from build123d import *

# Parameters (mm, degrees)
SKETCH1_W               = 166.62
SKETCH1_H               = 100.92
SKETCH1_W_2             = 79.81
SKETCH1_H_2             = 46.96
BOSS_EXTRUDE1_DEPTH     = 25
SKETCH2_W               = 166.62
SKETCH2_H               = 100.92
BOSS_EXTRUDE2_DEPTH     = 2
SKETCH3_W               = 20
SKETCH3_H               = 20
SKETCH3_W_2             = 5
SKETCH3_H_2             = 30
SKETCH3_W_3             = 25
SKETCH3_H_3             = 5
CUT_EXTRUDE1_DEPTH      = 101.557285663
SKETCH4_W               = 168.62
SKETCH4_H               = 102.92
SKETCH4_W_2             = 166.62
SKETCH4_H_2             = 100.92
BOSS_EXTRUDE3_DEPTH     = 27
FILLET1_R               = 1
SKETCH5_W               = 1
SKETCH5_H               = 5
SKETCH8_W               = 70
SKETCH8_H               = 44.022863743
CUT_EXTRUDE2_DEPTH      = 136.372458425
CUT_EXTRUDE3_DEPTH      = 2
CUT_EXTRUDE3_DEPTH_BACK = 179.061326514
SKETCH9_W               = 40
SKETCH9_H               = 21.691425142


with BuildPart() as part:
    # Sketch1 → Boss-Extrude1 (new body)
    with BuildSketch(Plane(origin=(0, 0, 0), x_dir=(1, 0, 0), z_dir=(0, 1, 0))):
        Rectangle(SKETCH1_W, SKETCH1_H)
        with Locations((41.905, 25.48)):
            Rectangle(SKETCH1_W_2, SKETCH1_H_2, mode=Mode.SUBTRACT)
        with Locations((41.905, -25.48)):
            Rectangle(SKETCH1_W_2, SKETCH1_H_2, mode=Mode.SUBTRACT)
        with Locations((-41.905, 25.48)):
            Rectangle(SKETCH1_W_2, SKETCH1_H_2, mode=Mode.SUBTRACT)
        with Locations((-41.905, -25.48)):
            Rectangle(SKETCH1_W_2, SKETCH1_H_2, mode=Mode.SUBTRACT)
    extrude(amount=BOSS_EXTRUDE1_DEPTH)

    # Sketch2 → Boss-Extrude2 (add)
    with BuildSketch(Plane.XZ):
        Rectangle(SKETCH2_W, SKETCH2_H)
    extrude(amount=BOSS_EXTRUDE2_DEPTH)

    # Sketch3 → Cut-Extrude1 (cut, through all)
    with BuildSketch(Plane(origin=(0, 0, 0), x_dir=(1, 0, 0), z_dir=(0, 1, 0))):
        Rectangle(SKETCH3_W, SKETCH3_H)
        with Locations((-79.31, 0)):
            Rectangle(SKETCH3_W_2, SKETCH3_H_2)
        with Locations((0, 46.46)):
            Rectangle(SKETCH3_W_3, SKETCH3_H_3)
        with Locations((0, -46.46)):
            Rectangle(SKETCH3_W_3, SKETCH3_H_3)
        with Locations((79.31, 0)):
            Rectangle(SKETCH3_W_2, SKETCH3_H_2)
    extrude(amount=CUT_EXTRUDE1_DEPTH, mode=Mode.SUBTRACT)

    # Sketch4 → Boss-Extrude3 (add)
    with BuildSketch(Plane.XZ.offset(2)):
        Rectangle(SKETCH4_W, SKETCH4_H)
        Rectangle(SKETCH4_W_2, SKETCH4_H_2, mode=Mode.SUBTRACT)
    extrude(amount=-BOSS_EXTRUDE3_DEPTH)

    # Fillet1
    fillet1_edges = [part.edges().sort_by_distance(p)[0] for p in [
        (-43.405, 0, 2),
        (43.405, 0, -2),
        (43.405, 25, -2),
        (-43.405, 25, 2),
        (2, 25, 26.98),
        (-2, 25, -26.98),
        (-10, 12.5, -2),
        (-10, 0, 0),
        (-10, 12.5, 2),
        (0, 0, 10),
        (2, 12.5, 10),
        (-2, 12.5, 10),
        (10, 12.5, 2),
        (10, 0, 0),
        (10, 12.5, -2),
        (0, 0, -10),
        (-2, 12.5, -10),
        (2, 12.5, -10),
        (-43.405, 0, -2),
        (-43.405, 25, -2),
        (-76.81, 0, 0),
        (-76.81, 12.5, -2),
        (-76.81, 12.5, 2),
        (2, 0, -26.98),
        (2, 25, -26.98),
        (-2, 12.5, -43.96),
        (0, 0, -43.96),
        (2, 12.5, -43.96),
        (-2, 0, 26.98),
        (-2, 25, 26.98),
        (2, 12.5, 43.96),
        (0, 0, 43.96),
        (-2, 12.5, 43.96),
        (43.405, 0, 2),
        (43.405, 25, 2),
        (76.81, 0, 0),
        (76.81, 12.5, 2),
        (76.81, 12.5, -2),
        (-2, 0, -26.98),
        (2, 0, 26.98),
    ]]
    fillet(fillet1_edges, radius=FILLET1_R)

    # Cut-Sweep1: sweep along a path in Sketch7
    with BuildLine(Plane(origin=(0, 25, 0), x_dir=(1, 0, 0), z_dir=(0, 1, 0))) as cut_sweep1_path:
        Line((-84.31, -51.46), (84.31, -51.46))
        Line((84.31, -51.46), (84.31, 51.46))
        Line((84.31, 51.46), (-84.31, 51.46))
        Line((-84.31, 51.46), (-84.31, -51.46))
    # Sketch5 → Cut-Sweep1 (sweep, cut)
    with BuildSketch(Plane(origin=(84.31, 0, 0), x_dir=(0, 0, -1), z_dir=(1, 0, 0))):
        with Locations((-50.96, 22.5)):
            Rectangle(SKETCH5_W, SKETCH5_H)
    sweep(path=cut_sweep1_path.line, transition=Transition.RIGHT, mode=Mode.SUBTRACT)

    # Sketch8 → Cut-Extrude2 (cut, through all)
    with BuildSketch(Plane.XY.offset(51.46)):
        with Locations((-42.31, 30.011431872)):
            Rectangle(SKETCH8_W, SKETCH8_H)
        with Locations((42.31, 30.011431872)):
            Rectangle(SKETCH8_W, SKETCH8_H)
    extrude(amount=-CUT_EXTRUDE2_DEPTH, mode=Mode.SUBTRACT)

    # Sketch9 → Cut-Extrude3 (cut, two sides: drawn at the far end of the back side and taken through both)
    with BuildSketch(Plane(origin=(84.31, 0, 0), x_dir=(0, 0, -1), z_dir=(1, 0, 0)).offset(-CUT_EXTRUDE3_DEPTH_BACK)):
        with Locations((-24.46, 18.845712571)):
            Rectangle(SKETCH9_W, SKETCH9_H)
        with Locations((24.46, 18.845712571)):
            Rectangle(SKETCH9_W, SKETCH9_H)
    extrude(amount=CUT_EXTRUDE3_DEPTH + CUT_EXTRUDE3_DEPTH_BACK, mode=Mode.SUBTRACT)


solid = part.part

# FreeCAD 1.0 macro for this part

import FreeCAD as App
import Part
import Sketcher

V = App.Vector


def edges_at(feature, points):
    """Names of the edges that pass closest to the given points."""
    edges = feature.Shape.Edges
    near = lambda p: min(range(len(edges)), key=lambda i: edges[i].distToShape(Part.Vertex(*p))[0])
    return sorted({f"Edge{near(p) + 1}" for p in points})

doc = App.newDocument("Part")
body = doc.addObject("PartDesign::Body", "Body")

# Sketch on XZ plane
sketch1 = body.newObject("Sketcher::SketchObject", "Sketch")
sketch1.AttachmentSupport = (doc.getObject("XZ_Plane"), [""])
sketch1.MapMode = "FlatFace"
sketch1.addGeometry([
    Part.LineSegment(V(-83, -50, 0), V(-83, 50, 0)),  # 0
    Part.LineSegment(V(-83, 50, 0), V(83, 50, 0)),  # 1
    Part.LineSegment(V(83, 50, 0), V(83, -50, 0)),  # 2
    Part.LineSegment(V(83, -50, 0), V(-83, -50, 0)),  # 3
    Part.LineSegment(V(-2, 49, 0), V(-82, 49, 0)),  # 4
    Part.LineSegment(V(-82, 49, 0), V(-82, 2, 0)),  # 5
    Part.LineSegment(V(-82, 2, 0), V(-2, 2, 0)),  # 6
    Part.LineSegment(V(-2, 2, 0), V(-2, 49, 0)),  # 7
    Part.LineSegment(V(82, 49, 0), V(2, 49, 0)),  # 8
    Part.LineSegment(V(2, 49, 0), V(2, 2, 0)),  # 9
    Part.LineSegment(V(2, 2, 0), V(82, 2, 0)),  # 10
    Part.LineSegment(V(82, 2, 0), V(82, 49, 0)),  # 11
    Part.LineSegment(V(-2, -2, 0), V(-82, -2, 0)),  # 12
    Part.LineSegment(V(-82, -2, 0), V(-82, -49, 0)),  # 13
    Part.LineSegment(V(-82, -49, 0), V(-2, -49, 0)),  # 14
    Part.LineSegment(V(-2, -49, 0), V(-2, -2, 0)),  # 15
    Part.LineSegment(V(82, -2, 0), V(2, -2, 0)),  # 16
    Part.LineSegment(V(2, -2, 0), V(2, -49, 0)),  # 17
    Part.LineSegment(V(2, -49, 0), V(82, -49, 0)),  # 18
    Part.LineSegment(V(82, -49, 0), V(82, -2, 0)),  # 19
], False)
sketch1.addConstraint([
    Sketcher.Constraint("Coincident", 0, 2, 1, 1),
    Sketcher.Constraint("Coincident", 1, 2, 2, 1),
    Sketcher.Constraint("Coincident", 2, 2, 3, 1),
    Sketcher.Constraint("Coincident", 3, 2, 0, 1),
    Sketcher.Constraint("Coincident", 4, 2, 5, 1),
    Sketcher.Constraint("Coincident", 5, 2, 6, 1),
    Sketcher.Constraint("Coincident", 6, 2, 7, 1),
    Sketcher.Constraint("Coincident", 7, 2, 4, 1),
    Sketcher.Constraint("Coincident", 8, 2, 9, 1),
    Sketcher.Constraint("Coincident", 9, 2, 10, 1),
    Sketcher.Constraint("Coincident", 10, 2, 11, 1),
    Sketcher.Constraint("Coincident", 11, 2, 8, 1),
    Sketcher.Constraint("Coincident", 12, 2, 13, 1),
    Sketcher.Constraint("Coincident", 13, 2, 14, 1),
    Sketcher.Constraint("Coincident", 14, 2, 15, 1),
    Sketcher.Constraint("Coincident", 15, 2, 12, 1),
    Sketcher.Constraint("Coincident", 16, 2, 17, 1),
    Sketcher.Constraint("Coincident", 17, 2, 18, 1),
    Sketcher.Constraint("Coincident", 18, 2, 19, 1),
    Sketcher.Constraint("Coincident", 19, 2, 16, 1),
    Sketcher.Constraint("Vertical", 0),
    Sketcher.Constraint("Horizontal", 1),
    Sketcher.Constraint("Vertical", 2),
    Sketcher.Constraint("Horizontal", 3),
    Sketcher.Constraint("Horizontal", 4),
    Sketcher.Constraint("Vertical", 5),
    Sketcher.Constraint("Horizontal", 6),
    Sketcher.Constraint("Vertical", 7),
    Sketcher.Constraint("Horizontal", 8),
    Sketcher.Constraint("Vertical", 9),
    Sketcher.Constraint("Horizontal", 10),
    Sketcher.Constraint("Vertical", 11),
    Sketcher.Constraint("Horizontal", 12),
    Sketcher.Constraint("Vertical", 13),
    Sketcher.Constraint("Horizontal", 14),
    Sketcher.Constraint("Vertical", 15),
    Sketcher.Constraint("Horizontal", 16),
    Sketcher.Constraint("Vertical", 17),
    Sketcher.Constraint("Horizontal", 18),
    Sketcher.Constraint("Vertical", 19),
    Sketcher.Constraint("Symmetric", 0, 2, 2, 2, -1, 1),
    Sketcher.Constraint("Symmetric", 10, 2, 12, 2, -1, 1),
    Sketcher.Constraint("Symmetric", 8, 2, 14, 2, -1, 1),
    Sketcher.Constraint("Symmetric", 6, 2, 16, 2, -1, 1),
    Sketcher.Constraint("Symmetric", 4, 2, 18, 2, -1, 1),
    Sketcher.Constraint("Symmetric", 7, 2, 8, 2, -2),
    Sketcher.Constraint("Symmetric", 5, 2, 10, 2, -2),
    Sketcher.Constraint("DistanceY", -1, 1, 5, 2, 2.0),
    Sketcher.Constraint("DistanceX", 6, 2, -1, 1, 2.0),
    Sketcher.Constraint("DistanceX", 1, 1, 1, 2, 166.62),
    Sketcher.Constraint("DistanceX", 4, 2, 4, 1, 79.81),
    Sketcher.Constraint("DistanceY", 0, 1, 0, 2, 100.92),
    Sketcher.Constraint("DistanceY", 5, 2, 5, 1, 46.96),
])
pad1 = body.newObject("PartDesign::Pad", "Pad")
pad1.Profile = sketch1
pad1.Length = 25
pad1.Reversed = True

# Sketch on XZ plane
sketch2 = body.newObject("Sketcher::SketchObject", "Sketch001")
sketch2.AttachmentSupport = (doc.getObject("XZ_Plane"), [""])
sketch2.MapMode = "FlatFace"
sketch2.addGeometry([
    Part.LineSegment(V(-83, 50, 0), V(-83, -50, 0)),
    Part.LineSegment(V(-83, -50, 0), V(83, -50, 0)),
    Part.LineSegment(V(83, -50, 0), V(83, 50, 0)),
    Part.LineSegment(V(83, 50, 0), V(-83, 50, 0)),
], False)
sketch2.addConstraint([
    Sketcher.Constraint("Coincident", 0, 2, 1, 1),
    Sketcher.Constraint("Coincident", 1, 2, 2, 1),
    Sketcher.Constraint("Coincident", 2, 2, 3, 1),
    Sketcher.Constraint("Coincident", 3, 2, 0, 1),
    Sketcher.Constraint("Vertical", 0),
    Sketcher.Constraint("Horizontal", 1),
    Sketcher.Constraint("Vertical", 2),
    Sketcher.Constraint("Horizontal", 3),
    Sketcher.Constraint("Symmetric", 0, 2, 2, 2, -1, 1),
    Sketcher.Constraint("DistanceX", 1, 1, 1, 2, 166.62),
    Sketcher.Constraint("DistanceY", 0, 2, 0, 1, 100.92),
])
pad2 = body.newObject("PartDesign::Pad", "Pad001")
pad2.Profile = sketch2
pad2.Length = 2

# Sketch on XZ plane
sketch3 = body.newObject("Sketcher::SketchObject", "Sketch002")
sketch3.AttachmentSupport = (doc.getObject("XZ_Plane"), [""])
sketch3.MapMode = "FlatFace"
sketch3.addGeometry([
    Part.LineSegment(V(-10, -10, 0), V(-10, 10, 0)),  # 0
    Part.LineSegment(V(-10, 10, 0), V(10, 10, 0)),  # 1
    Part.LineSegment(V(10, 10, 0), V(10, -10, 0)),  # 2
    Part.LineSegment(V(10, -10, 0), V(-10, -10, 0)),  # 3
    Part.LineSegment(V(-82, -15, 0), V(-82, 15, 0)),  # 4
    Part.LineSegment(V(-82, 15, 0), V(-77, 15, 0)),  # 5
    Part.LineSegment(V(-77, 15, 0), V(-77, -15, 0)),  # 6
    Part.LineSegment(V(-77, -15, 0), V(-82, -15, 0)),  # 7
    Part.LineSegment(V(-12, -49, 0), V(-12, -44, 0)),  # 8
    Part.LineSegment(V(-12, -44, 0), V(12, -44, 0)),  # 9
    Part.LineSegment(V(12, -44, 0), V(12, -49, 0)),  # 10
    Part.LineSegment(V(12, -49, 0), V(-12, -49, 0)),  # 11
    Part.LineSegment(V(-12, 44, 0), V(-12, 49, 0)),  # 12
    Part.LineSegment(V(-12, 49, 0), V(12, 49, 0)),  # 13
    Part.LineSegment(V(12, 49, 0), V(12, 44, 0)),  # 14
    Part.LineSegment(V(12, 44, 0), V(-12, 44, 0)),  # 15
    Part.LineSegment(V(77, -15, 0), V(77, 15, 0)),  # 16
    Part.LineSegment(V(77, 15, 0), V(82, 15, 0)),  # 17
    Part.LineSegment(V(82, 15, 0), V(82, -15, 0)),  # 18
    Part.LineSegment(V(82, -15, 0), V(77, -15, 0)),  # 19
], False)
sketch3.addConstraint([
    Sketcher.Constraint("Coincident", 0, 2, 1, 1),
    Sketcher.Constraint("Coincident", 1, 2, 2, 1),
    Sketcher.Constraint("Coincident", 2, 2, 3, 1),
    Sketcher.Constraint("Coincident", 3, 2, 0, 1),
    Sketcher.Constraint("Coincident", 4, 2, 5, 1),
    Sketcher.Constraint("Coincident", 5, 2, 6, 1),
    Sketcher.Constraint("Coincident", 6, 2, 7, 1),
    Sketcher.Constraint("Coincident", 7, 2, 4, 1),
    Sketcher.Constraint("Coincident", 8, 2, 9, 1),
    Sketcher.Constraint("Coincident", 9, 2, 10, 1),
    Sketcher.Constraint("Coincident", 10, 2, 11, 1),
    Sketcher.Constraint("Coincident", 11, 2, 8, 1),
    Sketcher.Constraint("Coincident", 12, 2, 13, 1),
    Sketcher.Constraint("Coincident", 13, 2, 14, 1),
    Sketcher.Constraint("Coincident", 14, 2, 15, 1),
    Sketcher.Constraint("Coincident", 15, 2, 12, 1),
    Sketcher.Constraint("Coincident", 16, 2, 17, 1),
    Sketcher.Constraint("Coincident", 17, 2, 18, 1),
    Sketcher.Constraint("Coincident", 18, 2, 19, 1),
    Sketcher.Constraint("Coincident", 19, 2, 16, 1),
    Sketcher.Constraint("Vertical", 0),
    Sketcher.Constraint("Horizontal", 1),
    Sketcher.Constraint("Vertical", 2),
    Sketcher.Constraint("Horizontal", 3),
    Sketcher.Constraint("Vertical", 4),
    Sketcher.Constraint("Horizontal", 5),
    Sketcher.Constraint("Vertical", 6),
    Sketcher.Constraint("Horizontal", 7),
    Sketcher.Constraint("Vertical", 8),
    Sketcher.Constraint("Horizontal", 9),
    Sketcher.Constraint("Vertical", 10),
    Sketcher.Constraint("Horizontal", 11),
    Sketcher.Constraint("Vertical", 12),
    Sketcher.Constraint("Horizontal", 13),
    Sketcher.Constraint("Vertical", 14),
    Sketcher.Constraint("Horizontal", 15),
    Sketcher.Constraint("Vertical", 16),
    Sketcher.Constraint("Horizontal", 17),
    Sketcher.Constraint("Vertical", 18),
    Sketcher.Constraint("Horizontal", 19),
    Sketcher.Constraint("Symmetric", 0, 2, 2, 2, -1, 1),
    Sketcher.Constraint("Symmetric", 10, 2, 12, 2, -1, 1),
    Sketcher.Constraint("Symmetric", 8, 2, 14, 2, -1, 1),
    Sketcher.Constraint("Symmetric", 6, 2, 16, 2, -1, 1),
    Sketcher.Constraint("Symmetric", 4, 2, 18, 2, -1, 1),
    Sketcher.Constraint("Horizontal", 5, 2, 16, 2),
    Sketcher.Constraint("Vertical", 11, 2, 12, 2),
    Sketcher.Constraint("Equal", 3, 0),
    Sketcher.Constraint("Equal", 19, 8),
    Sketcher.Constraint("DistanceX", 1, 1, 1, 2, 20.0),
    Sketcher.Constraint("DistanceX", 5, 1, 5, 2, 5.0),
    Sketcher.Constraint("DistanceX", 9, 1, 9, 2, 25.0),
    Sketcher.Constraint("DistanceY", 4, 1, 4, 2, 30.0),
    Sketcher.Constraint("DistanceX", 4, 2, -1, 1, 81.81),
    Sketcher.Constraint("DistanceY", 8, 2, -1, 1, 43.96),
])
pocket1 = body.newObject("PartDesign::Pocket", "Pocket")
pocket1.Profile = sketch3
pocket1.Type = "ThroughAll"

# Sketch on XZ plane
sketch4 = body.newObject("Sketcher::SketchObject", "Sketch003")
sketch4.AttachmentSupport = (doc.getObject("XZ_Plane"), [""])
sketch4.MapMode = "FlatFace"
sketch4.AttachmentOffset = App.Placement(V(0, 0, 2), App.Rotation())
sketch4.addGeometry([
    Part.LineSegment(V(-84, 51, 0), V(-84, -51, 0)),  # 0
    Part.LineSegment(V(-84, -51, 0), V(84, -51, 0)),  # 1
    Part.LineSegment(V(84, -51, 0), V(84, 51, 0)),  # 2
    Part.LineSegment(V(84, 51, 0), V(-84, 51, 0)),  # 3
    Part.LineSegment(V(83, -50, 0), V(-83, -50, 0)),  # 4
    Part.LineSegment(V(-83, -50, 0), V(-83, 50, 0)),  # 5
    Part.LineSegment(V(-83, 50, 0), V(83, 50, 0)),  # 6
    Part.LineSegment(V(83, 50, 0), V(83, -50, 0)),  # 7
], False)
sketch4.addConstraint([
    Sketcher.Constraint("Coincident", 0, 2, 1, 1),
    Sketcher.Constraint("Coincident", 1, 2, 2, 1),
    Sketcher.Constraint("Coincident", 2, 2, 3, 1),
    Sketcher.Constraint("Coincident", 3, 2, 0, 1),
    Sketcher.Constraint("Coincident", 4, 2, 5, 1),
    Sketcher.Constraint("Coincident", 5, 2, 6, 1),
    Sketcher.Constraint("Coincident", 6, 2, 7, 1),
    Sketcher.Constraint("Coincident", 7, 2, 4, 1),
    Sketcher.Constraint("Vertical", 0),
    Sketcher.Constraint("Horizontal", 1),
    Sketcher.Constraint("Vertical", 2),
    Sketcher.Constraint("Horizontal", 3),
    Sketcher.Constraint("Horizontal", 4),
    Sketcher.Constraint("Vertical", 5),
    Sketcher.Constraint("Horizontal", 6),
    Sketcher.Constraint("Vertical", 7),
    Sketcher.Constraint("Symmetric", 0, 2, 2, 2, -1, 1),
    Sketcher.Constraint("Symmetric", 4, 2, 6, 2, -1, 1),
    Sketcher.Constraint("DistanceX", 0, 2, 4, 2, 1.0),
    Sketcher.Constraint("DistanceY", 0, 2, 4, 2, 1.0),
    Sketcher.Constraint("DistanceX", 1, 1, 1, 2, 168.62),
    Sketcher.Constraint("DistanceY", 0, 2, 0, 1, 102.92),
])
pad3 = body.newObject("PartDesign::Pad", "Pad002")
pad3.Profile = sketch4
pad3.Length = 27
pad3.Reversed = True
doc.recompute()

fillet = body.newObject("PartDesign::Fillet", "Fillet")
fillet.Base = (pad3, edges_at(pad3, [
    (-43.405, 0, 2),
    (43.405, 0, -2),
    (43.405, 25, -2),
    (-43.405, 25, 2),
    (2, 25, 26.98),
    (-2, 25, -26.98),
    (-10, 12.5, -2),
    (-10, 0, 0),
    (-10, 12.5, 2),
    (0, 0, 10),
    (2, 12.5, 10),
    (-2, 12.5, 10),
    (10, 12.5, 2),
    (10, 0, 0),
    (10, 12.5, -2),
    (0, 0, -10),
    (-2, 12.5, -10),
    (2, 12.5, -10),
    (-43.405, 0, -2),
    (-43.405, 25, -2),
    (-76.81, 0, 0),
    (-76.81, 12.5, -2),
    (-76.81, 12.5, 2),
    (2, 0, -26.98),
    (2, 25, -26.98),
    (-2, 12.5, -43.96),
    (0, 0, -43.96),
    (2, 12.5, -43.96),
    (-2, 0, 26.98),
    (-2, 25, 26.98),
    (2, 12.5, 43.96),
    (0, 0, 43.96),
    (-2, 12.5, 43.96),
    (43.405, 0, 2),
    (43.405, 25, 2),
    (76.81, 0, 0),
    (76.81, 12.5, 2),
    (76.81, 12.5, -2),
    (-2, 0, -26.98),
    (2, 0, 26.98),
]))
fillet.Radius = 1

# Sketch on YZ plane
sketch5 = body.newObject("Sketcher::SketchObject", "Sketch004")
sketch5.AttachmentSupport = (doc.getObject("YZ_Plane"), [""])
sketch5.MapMode = "FlatFace"
sketch5.AttachmentOffset = App.Placement(V(0, 0, 84.31), App.Rotation())
sketch5.addGeometry([
    Part.LineSegment(V(25, 51.5, 0), V(20, 51.5, 0)),
    Part.LineSegment(V(20, 51.5, 0), V(20, 50.5, 0)),
    Part.LineSegment(V(20, 50.5, 0), V(25, 50.5, 0)),
    Part.LineSegment(V(25, 50.5, 0), V(25, 51.5, 0)),
], False)
sketch5.addConstraint([
    Sketcher.Constraint("Coincident", 0, 2, 1, 1),
    Sketcher.Constraint("Coincident", 1, 2, 2, 1),
    Sketcher.Constraint("Coincident", 2, 2, 3, 1),
    Sketcher.Constraint("Coincident", 3, 2, 0, 1),
    Sketcher.Constraint("Horizontal", 0),
    Sketcher.Constraint("Vertical", 1),
    Sketcher.Constraint("Horizontal", 2),
    Sketcher.Constraint("Vertical", 3),
    Sketcher.Constraint("DistanceX", 0, 2, 0, 1, 5.0),
    Sketcher.Constraint("DistanceY", 1, 2, 1, 1, 1.0),
    Sketcher.Constraint("DistanceX", -1, 1, 0, 2, 20.0),
    Sketcher.Constraint("DistanceY", -1, 1, 0, 2, 51.46),
])

# Sketch on XZ plane
sketch6 = body.newObject("Sketcher::SketchObject", "Sketch005")
sketch6.AttachmentSupport = (doc.getObject("XZ_Plane"), [""])
sketch6.MapMode = "FlatFace"
sketch6.AttachmentOffset = App.Placement(V(0, 0, -25), App.Rotation())
sketch6.addGeometry([
    Part.LineSegment(V(-84, 51, 0), V(84, 51, 0)),
    Part.LineSegment(V(84, 51, 0), V(84, -51, 0)),
    Part.LineSegment(V(84, -51, 0), V(-84, -51, 0)),
    Part.LineSegment(V(-84, -51, 0), V(-84, 51, 0)),
], False)
sketch6.addConstraint([
    Sketcher.Constraint("Coincident", 0, 2, 1, 1),
    Sketcher.Constraint("Coincident", 1, 2, 2, 1),
    Sketcher.Constraint("Coincident", 2, 2, 3, 1),
    Sketcher.Constraint("Coincident", 3, 2, 0, 1),
    Sketcher.Constraint("Horizontal", 0),
    Sketcher.Constraint("Vertical", 1),
    Sketcher.Constraint("Horizontal", 2),
    Sketcher.Constraint("Vertical", 3),
    Sketcher.Constraint("Symmetric", 0, 2, 2, 2, -1, 1),
    Sketcher.Constraint("DistanceX", 0, 1, 0, 2, 168.62),
    Sketcher.Constraint("DistanceY", 1, 2, 1, 1, 102.92),
])
doc.recompute()

subtractivepipe = body.newObject("PartDesign::SubtractivePipe", "SubtractivePipe")
subtractivepipe.Profile = sketch5
subtractivepipe.Spine = (sketch6, ["Edge1", "Edge2", "Edge3", "Edge4"])
subtractivepipe.Transition = "Right corner"

# Sketch on XY plane
sketch7 = body.newObject("Sketcher::SketchObject", "Sketch006")
sketch7.AttachmentSupport = (doc.getObject("XY_Plane"), [""])
sketch7.MapMode = "FlatFace"
sketch7.AttachmentOffset = App.Placement(V(0, 0, 51.46), App.Rotation())
sketch7.addGeometry([
    Part.LineSegment(V(-77, 52, 0), V(-77, 8, 0)),  # 0
    Part.LineSegment(V(-77, 8, 0), V(-7, 8, 0)),  # 1
    Part.LineSegment(V(-7, 8, 0), V(-7, 52, 0)),  # 2
    Part.LineSegment(V(-7, 52, 0), V(-77, 52, 0)),  # 3
    Part.LineSegment(V(7, 52, 0), V(7, 8, 0)),  # 4
    Part.LineSegment(V(7, 8, 0), V(77, 8, 0)),  # 5
    Part.LineSegment(V(77, 8, 0), V(77, 52, 0)),  # 6
    Part.LineSegment(V(77, 52, 0), V(7, 52, 0)),  # 7
], False)
sketch7.addConstraint([
    Sketcher.Constraint("Coincident", 0, 2, 1, 1),
    Sketcher.Constraint("Coincident", 1, 2, 2, 1),
    Sketcher.Constraint("Coincident", 2, 2, 3, 1),
    Sketcher.Constraint("Coincident", 3, 2, 0, 1),
    Sketcher.Constraint("Coincident", 4, 2, 5, 1),
    Sketcher.Constraint("Coincident", 5, 2, 6, 1),
    Sketcher.Constraint("Coincident", 6, 2, 7, 1),
    Sketcher.Constraint("Coincident", 7, 2, 4, 1),
    Sketcher.Constraint("Vertical", 0),
    Sketcher.Constraint("Horizontal", 1),
    Sketcher.Constraint("Vertical", 2),
    Sketcher.Constraint("Horizontal", 3),
    Sketcher.Constraint("Vertical", 4),
    Sketcher.Constraint("Horizontal", 5),
    Sketcher.Constraint("Vertical", 6),
    Sketcher.Constraint("Horizontal", 7),
    Sketcher.Constraint("Symmetric", 1, 2, 4, 2, -2),
    Sketcher.Constraint("Symmetric", 3, 2, 6, 2, -2),
    Sketcher.Constraint("DistanceX", 1, 1, 1, 2, 70.0),
    Sketcher.Constraint("DistanceY", -1, 1, 0, 2, 8.0),
    Sketcher.Constraint("DistanceX", 0, 2, -1, 1, 77.31),
    Sketcher.Constraint("DistanceY", 0, 2, 0, 1, 44.022864),
])
pocket2 = body.newObject("PartDesign::Pocket", "Pocket001")
pocket2.Profile = sketch7
pocket2.Type = "ThroughAll"

# Sketch on YZ plane
sketch8 = body.newObject("Sketcher::SketchObject", "Sketch007")
sketch8.AttachmentSupport = (doc.getObject("YZ_Plane"), [""])
sketch8.MapMode = "FlatFace"
sketch8.AttachmentOffset = App.Placement(V(0, 0, 84.31), App.Rotation())
sketch8.addGeometry([
    Part.LineSegment(V(30, 44, 0), V(8, 44, 0)),  # 0
    Part.LineSegment(V(8, 44, 0), V(8, 4, 0)),  # 1
    Part.LineSegment(V(8, 4, 0), V(30, 4, 0)),  # 2
    Part.LineSegment(V(30, 4, 0), V(30, 44, 0)),  # 3
    Part.LineSegment(V(30, -4, 0), V(8, -4, 0)),  # 4
    Part.LineSegment(V(8, -4, 0), V(8, -44, 0)),  # 5
    Part.LineSegment(V(8, -44, 0), V(30, -44, 0)),  # 6
    Part.LineSegment(V(30, -44, 0), V(30, -4, 0)),  # 7
], False)
sketch8.addConstraint([
    Sketcher.Constraint("Coincident", 0, 2, 1, 1),
    Sketcher.Constraint("Coincident", 1, 2, 2, 1),
    Sketcher.Constraint("Coincident", 2, 2, 3, 1),
    Sketcher.Constraint("Coincident", 3, 2, 0, 1),
    Sketcher.Constraint("Coincident", 4, 2, 5, 1),
    Sketcher.Constraint("Coincident", 5, 2, 6, 1),
    Sketcher.Constraint("Coincident", 6, 2, 7, 1),
    Sketcher.Constraint("Coincident", 7, 2, 4, 1),
    Sketcher.Constraint("Horizontal", 0),
    Sketcher.Constraint("Vertical", 1),
    Sketcher.Constraint("Horizontal", 2),
    Sketcher.Constraint("Vertical", 3),
    Sketcher.Constraint("Horizontal", 4),
    Sketcher.Constraint("Vertical", 5),
    Sketcher.Constraint("Horizontal", 6),
    Sketcher.Constraint("Vertical", 7),
    Sketcher.Constraint("Symmetric", 1, 2, 4, 2, -1),
    Sketcher.Constraint("Symmetric", 3, 2, 6, 2, -1),
    Sketcher.Constraint("DistanceY", 1, 2, 1, 1, 40.0),
    Sketcher.Constraint("DistanceX", -1, 1, 0, 2, 8.0),
    Sketcher.Constraint("DistanceY", -1, 1, 0, 2, 44.46),
    Sketcher.Constraint("DistanceX", 0, 2, 0, 1, 21.691425),
])
pocket3 = body.newObject("PartDesign::Pocket", "Pocket002")
pocket3.Profile = sketch8
pocket3.Type = "ThroughAll"
pocket3.Midplane = True

doc.recompute()
